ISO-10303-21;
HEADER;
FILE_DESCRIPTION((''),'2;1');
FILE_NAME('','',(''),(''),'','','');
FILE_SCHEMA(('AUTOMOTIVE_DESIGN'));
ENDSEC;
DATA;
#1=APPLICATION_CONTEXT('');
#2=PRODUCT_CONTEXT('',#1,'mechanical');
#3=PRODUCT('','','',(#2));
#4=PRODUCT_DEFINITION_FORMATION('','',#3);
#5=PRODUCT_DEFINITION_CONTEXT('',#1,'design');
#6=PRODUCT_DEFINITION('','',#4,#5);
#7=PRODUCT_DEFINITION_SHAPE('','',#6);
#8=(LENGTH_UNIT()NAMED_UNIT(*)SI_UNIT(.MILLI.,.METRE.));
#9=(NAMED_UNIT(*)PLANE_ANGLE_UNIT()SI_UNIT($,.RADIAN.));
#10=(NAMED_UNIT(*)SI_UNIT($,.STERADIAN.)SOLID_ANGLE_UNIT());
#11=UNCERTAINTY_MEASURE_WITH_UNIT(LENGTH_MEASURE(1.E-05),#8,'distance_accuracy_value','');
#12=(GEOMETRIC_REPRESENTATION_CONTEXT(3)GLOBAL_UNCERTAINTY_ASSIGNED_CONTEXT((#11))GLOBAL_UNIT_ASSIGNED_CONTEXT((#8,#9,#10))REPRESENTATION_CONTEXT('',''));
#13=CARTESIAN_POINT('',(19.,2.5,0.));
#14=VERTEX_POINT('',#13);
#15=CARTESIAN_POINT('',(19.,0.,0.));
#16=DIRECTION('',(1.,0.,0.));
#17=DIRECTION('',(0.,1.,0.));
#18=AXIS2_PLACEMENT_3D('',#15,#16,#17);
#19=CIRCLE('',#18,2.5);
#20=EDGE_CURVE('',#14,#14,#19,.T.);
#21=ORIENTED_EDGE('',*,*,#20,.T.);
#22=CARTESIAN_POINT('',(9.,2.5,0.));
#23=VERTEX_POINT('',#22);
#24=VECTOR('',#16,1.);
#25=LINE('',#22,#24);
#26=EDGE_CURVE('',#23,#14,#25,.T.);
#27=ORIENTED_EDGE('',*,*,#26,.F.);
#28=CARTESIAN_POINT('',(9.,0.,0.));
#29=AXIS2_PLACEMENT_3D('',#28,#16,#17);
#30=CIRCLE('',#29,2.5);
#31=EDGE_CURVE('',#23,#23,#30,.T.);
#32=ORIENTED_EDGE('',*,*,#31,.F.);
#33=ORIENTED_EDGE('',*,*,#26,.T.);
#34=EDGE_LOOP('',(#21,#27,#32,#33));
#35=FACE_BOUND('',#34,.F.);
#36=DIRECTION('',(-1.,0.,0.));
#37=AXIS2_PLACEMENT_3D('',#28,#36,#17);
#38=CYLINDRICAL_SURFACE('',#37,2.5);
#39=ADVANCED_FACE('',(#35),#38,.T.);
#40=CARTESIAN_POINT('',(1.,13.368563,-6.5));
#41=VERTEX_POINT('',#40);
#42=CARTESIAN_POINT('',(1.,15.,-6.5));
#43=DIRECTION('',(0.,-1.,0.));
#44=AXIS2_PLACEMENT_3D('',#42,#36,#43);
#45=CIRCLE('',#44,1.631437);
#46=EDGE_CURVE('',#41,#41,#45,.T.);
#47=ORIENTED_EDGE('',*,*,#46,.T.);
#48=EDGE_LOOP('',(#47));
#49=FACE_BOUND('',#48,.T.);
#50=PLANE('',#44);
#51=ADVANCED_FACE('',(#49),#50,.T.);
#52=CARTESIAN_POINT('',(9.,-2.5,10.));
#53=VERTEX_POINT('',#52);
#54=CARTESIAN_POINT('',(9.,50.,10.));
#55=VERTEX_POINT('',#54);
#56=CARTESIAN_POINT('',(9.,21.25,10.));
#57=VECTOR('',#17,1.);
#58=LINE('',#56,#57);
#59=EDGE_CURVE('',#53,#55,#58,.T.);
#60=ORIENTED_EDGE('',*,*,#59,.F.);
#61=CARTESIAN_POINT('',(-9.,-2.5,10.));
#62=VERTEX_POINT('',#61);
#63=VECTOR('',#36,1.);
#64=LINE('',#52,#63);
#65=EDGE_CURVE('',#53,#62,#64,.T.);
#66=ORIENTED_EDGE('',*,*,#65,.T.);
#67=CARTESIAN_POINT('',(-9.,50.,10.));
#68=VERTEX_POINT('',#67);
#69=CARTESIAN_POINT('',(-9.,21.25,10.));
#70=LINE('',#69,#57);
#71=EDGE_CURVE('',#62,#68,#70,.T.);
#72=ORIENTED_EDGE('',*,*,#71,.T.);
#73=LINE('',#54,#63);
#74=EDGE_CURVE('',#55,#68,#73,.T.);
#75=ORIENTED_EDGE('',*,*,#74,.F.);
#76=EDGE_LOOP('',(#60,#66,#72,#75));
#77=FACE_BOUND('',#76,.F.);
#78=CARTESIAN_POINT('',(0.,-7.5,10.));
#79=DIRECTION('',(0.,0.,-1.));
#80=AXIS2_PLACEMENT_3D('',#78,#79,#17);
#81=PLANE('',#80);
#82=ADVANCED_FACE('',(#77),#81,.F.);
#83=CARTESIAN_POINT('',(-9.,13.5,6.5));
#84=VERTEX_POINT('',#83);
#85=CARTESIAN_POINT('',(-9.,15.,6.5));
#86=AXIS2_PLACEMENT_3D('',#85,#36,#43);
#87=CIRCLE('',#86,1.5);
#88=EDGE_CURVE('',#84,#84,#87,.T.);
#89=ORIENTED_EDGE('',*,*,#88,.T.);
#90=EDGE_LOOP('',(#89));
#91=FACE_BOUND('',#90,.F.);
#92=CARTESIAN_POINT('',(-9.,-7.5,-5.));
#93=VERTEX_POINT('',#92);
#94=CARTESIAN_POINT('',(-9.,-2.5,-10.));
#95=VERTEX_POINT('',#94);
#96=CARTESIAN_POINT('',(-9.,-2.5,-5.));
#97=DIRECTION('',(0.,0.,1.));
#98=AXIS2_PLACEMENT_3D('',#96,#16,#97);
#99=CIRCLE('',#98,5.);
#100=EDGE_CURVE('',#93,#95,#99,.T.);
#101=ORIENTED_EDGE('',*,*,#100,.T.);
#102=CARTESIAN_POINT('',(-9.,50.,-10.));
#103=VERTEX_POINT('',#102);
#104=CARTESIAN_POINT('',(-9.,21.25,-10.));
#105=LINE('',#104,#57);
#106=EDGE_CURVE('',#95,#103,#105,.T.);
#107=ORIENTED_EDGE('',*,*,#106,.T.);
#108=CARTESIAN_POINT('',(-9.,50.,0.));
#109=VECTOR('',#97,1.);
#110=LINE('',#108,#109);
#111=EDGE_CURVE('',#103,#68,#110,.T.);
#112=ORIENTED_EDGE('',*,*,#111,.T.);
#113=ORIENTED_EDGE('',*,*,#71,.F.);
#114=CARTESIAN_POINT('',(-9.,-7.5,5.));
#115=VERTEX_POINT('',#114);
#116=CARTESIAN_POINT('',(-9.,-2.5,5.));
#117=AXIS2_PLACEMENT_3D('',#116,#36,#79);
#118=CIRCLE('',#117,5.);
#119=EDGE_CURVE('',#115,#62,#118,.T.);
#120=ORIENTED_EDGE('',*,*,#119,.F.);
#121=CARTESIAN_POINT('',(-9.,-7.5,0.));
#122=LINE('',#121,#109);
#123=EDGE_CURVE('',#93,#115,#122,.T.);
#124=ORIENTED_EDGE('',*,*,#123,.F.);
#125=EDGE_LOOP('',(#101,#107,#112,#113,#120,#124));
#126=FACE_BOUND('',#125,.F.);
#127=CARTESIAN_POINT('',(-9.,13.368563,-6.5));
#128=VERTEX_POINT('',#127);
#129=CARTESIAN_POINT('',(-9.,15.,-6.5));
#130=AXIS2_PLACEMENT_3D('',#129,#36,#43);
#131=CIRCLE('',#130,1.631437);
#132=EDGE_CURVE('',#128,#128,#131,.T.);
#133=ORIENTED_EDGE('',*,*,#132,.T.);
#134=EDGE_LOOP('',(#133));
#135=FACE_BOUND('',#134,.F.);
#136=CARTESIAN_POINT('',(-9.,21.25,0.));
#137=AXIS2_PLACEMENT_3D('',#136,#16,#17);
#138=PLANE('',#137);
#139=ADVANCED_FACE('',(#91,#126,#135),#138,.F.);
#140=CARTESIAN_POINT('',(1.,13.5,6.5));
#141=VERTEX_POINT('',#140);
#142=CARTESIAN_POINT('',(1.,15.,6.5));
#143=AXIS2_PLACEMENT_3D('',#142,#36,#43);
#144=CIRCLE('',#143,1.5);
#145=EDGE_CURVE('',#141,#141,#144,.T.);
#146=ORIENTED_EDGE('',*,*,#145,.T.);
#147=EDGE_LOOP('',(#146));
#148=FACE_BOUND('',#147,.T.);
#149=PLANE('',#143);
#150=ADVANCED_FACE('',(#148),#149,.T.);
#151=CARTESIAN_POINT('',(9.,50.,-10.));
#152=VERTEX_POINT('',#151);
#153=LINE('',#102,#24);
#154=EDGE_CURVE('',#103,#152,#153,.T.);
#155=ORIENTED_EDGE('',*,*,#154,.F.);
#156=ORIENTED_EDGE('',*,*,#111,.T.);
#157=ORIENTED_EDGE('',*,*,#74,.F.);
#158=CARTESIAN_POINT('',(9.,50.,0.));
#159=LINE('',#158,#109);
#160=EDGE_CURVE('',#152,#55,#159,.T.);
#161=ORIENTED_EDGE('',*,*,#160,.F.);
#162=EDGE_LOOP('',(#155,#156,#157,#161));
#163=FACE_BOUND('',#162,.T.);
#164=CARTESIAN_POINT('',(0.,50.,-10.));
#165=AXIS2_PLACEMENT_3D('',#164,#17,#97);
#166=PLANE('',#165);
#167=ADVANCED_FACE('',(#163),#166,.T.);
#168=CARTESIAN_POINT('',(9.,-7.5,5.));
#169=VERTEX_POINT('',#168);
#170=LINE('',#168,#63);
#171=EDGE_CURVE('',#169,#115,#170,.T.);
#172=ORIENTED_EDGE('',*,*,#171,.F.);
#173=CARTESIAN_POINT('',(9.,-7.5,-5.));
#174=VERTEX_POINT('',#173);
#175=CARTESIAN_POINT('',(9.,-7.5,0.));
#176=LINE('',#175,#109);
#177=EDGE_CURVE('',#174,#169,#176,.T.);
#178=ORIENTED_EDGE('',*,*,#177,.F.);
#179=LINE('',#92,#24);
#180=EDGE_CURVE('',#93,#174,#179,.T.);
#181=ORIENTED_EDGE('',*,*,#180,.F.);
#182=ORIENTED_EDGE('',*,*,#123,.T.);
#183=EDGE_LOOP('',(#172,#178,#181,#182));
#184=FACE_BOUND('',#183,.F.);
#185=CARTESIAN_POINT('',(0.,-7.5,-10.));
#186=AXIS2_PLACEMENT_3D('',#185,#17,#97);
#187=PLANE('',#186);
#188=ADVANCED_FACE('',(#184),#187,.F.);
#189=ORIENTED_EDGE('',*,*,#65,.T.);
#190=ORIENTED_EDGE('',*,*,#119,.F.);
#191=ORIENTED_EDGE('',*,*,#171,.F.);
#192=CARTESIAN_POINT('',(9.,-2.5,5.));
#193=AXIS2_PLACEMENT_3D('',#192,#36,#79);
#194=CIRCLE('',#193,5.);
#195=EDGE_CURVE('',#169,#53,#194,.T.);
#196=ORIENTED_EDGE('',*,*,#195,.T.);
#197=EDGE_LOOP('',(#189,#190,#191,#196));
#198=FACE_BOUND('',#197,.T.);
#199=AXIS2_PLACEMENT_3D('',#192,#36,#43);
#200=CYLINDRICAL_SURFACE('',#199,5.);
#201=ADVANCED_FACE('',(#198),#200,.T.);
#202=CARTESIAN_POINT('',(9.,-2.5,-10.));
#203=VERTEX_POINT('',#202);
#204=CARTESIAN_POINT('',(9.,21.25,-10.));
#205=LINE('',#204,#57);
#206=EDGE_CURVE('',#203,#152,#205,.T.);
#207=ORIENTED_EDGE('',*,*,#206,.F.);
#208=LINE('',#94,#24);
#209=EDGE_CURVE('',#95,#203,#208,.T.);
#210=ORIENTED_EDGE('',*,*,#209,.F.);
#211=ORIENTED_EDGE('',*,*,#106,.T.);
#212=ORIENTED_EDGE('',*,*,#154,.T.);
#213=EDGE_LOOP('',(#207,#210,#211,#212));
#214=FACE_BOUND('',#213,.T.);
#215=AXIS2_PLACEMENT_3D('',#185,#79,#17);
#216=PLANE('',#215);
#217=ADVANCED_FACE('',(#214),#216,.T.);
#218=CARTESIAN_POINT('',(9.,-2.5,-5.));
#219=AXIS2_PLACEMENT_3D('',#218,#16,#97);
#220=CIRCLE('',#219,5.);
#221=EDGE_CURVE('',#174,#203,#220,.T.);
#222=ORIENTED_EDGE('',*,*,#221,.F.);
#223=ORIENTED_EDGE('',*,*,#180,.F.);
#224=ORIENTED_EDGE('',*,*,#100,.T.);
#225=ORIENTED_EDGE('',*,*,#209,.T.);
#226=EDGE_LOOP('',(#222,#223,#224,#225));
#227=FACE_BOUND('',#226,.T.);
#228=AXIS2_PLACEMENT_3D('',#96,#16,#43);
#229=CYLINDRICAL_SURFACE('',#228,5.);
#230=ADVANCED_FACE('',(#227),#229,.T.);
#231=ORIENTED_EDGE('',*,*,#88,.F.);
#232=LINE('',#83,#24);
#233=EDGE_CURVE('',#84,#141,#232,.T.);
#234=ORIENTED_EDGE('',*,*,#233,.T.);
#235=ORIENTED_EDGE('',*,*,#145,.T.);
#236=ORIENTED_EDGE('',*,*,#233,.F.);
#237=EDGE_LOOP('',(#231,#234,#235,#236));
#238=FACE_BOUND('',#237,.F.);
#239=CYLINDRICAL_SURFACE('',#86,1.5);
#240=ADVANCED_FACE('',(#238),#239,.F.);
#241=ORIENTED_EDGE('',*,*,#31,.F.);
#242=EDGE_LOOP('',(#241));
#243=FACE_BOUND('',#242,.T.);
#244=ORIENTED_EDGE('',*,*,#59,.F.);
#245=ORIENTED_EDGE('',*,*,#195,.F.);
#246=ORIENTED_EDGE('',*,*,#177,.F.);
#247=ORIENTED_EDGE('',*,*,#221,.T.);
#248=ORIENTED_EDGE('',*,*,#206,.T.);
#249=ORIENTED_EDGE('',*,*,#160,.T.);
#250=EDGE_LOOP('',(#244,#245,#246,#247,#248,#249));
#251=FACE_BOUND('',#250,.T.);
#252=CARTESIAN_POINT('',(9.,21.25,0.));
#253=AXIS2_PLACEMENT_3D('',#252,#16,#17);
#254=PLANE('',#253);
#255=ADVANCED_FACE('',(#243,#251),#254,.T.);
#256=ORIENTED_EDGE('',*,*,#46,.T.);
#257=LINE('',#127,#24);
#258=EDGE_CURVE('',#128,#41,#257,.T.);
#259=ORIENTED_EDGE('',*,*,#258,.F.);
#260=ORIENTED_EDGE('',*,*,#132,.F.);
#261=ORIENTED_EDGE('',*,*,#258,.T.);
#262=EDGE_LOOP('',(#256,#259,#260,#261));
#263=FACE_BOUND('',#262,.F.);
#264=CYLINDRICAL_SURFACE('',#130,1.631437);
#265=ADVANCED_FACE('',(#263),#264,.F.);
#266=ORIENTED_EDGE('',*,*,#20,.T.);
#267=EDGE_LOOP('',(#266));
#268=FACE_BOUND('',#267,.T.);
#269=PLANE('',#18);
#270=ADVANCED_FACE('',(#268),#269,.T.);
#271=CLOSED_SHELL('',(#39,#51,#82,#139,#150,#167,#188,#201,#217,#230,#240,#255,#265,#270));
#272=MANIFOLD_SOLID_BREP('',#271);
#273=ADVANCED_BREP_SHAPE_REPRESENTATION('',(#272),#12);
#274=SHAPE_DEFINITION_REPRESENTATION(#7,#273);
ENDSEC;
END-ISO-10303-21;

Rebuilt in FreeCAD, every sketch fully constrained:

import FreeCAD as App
import Part
import Sketcher
from FreeCAD import Vector


def edges_at(feature, points):
    """Names of the edges that pass closest to the given points."""
    edges = feature.Shape.Edges
    near = lambda p: min(range(len(edges)), key=lambda i: edges[i].distToShape(Part.Vertex(*p))[0])
    return sorted({f"Edge{near(p) + 1}" for p in points})


def add_polygon(sketch, points):
    """Adds a closed chain of lines whose ends are joined by coincident constraints."""
    first, n = sketch.GeometryCount, len(points)
    for a, b in zip(points, points[1:] + points[:1]):
        sketch.addGeometry(Part.LineSegment(App.Vector(*a, 0), App.Vector(*b, 0)), False)
    for i in range(n):
        sketch.addConstraint(Sketcher.Constraint("Coincident", first + i, 2, first + (i + 1) % n, 1))

doc = App.newDocument("Part")
body = doc.addObject("PartDesign::Body", "Body")

# Sketch on YZ plane
sketch1 = doc.addObject("Sketcher::SketchObject", "Sketch")
body.addObject(sketch1)
sketch1.AttachmentSupport = (doc.YZ_Plane, [""])
sketch1.MapMode = "FlatFace"
add_polygon(sketch1, [(-8, 10), (-8, -10), (50, -10), (50, 10)])  # lines 0-3
sketch1.addConstraint([
    Sketcher.Constraint("Vertical", 0),
    Sketcher.Constraint("Horizontal", 1),
    Sketcher.Constraint("Vertical", 2),
    Sketcher.Constraint("Horizontal", 3),
    Sketcher.Constraint("DistanceY", 0, 2, 0, 1, 20.0),
    Sketcher.Constraint("DistanceX", 1, 1, 1, 2, 57.5),
    Sketcher.Constraint("DistanceY", 0, 2, -1, 1, 10.0),
    Sketcher.Constraint("DistanceX", -1, 1, 1, 2, 50.0),
])
pad1 = doc.addObject("PartDesign::Pad", "Pad")
body.addObject(pad1)
pad1.Profile = sketch1
pad1.Length = 18
pad1.Midplane = True
doc.recompute()

fillet = doc.addObject("PartDesign::Fillet", "Fillet")
body.addObject(fillet)
fillet.Base = (pad1, edges_at(pad1, [(0, -7.5, 10), (0, -7.5, -10)]))
fillet.Radius = 5

# Sketch on YZ plane
sketch2 = doc.addObject("Sketcher::SketchObject", "Sketch001")
body.addObject(sketch2)
sketch2.AttachmentSupport = (doc.YZ_Plane, [""])
sketch2.MapMode = "FlatFace"
sketch2.AttachmentOffset = App.Placement(Vector(0, 0, 9), App.Rotation())
sketch2.addGeometry(Part.Circle(Vector(0, 0, 0), Vector(0, 0, 1), 2.5), False)
sketch2.addConstraint([
    Sketcher.Constraint("Coincident", 0, 3, -1, 1),
    Sketcher.Constraint("Diameter", 0, 5.0),
])
pad2 = doc.addObject("PartDesign::Pad", "Pad001")
body.addObject(pad2)
pad2.Profile = sketch2
pad2.Length = 10

# Sketch on YZ plane
sketch3 = doc.addObject("Sketcher::SketchObject", "Sketch002")
body.addObject(sketch3)
sketch3.AttachmentSupport = (doc.YZ_Plane, [""])
sketch3.MapMode = "FlatFace"
sketch3.AttachmentOffset = App.Placement(Vector(0, 0, -9), App.Rotation())
sketch3.addGeometry([
    Part.Circle(Vector(15, 6.5, 0), Vector(0, 0, 1), 1.5),
    Part.Circle(Vector(15, -6.5, 0), Vector(0, 0, 1), 1.6),
], False)
sketch3.addConstraint([
    Sketcher.Constraint("Symmetric", 0, 3, 1, 3, -1),
    Sketcher.Constraint("Diameter", 0, 3.0),
    Sketcher.Constraint("DistanceX", -1, 1, 0, 3, 15.0),
    Sketcher.Constraint("DistanceY", 1, 3, 0, 3, 13.0),
    Sketcher.Constraint("Diameter", 1, 3.262874),
])
pocket1 = doc.addObject("PartDesign::Pocket", "Pocket")
body.addObject(pocket1)
pocket1.Profile = sketch3
pocket1.Length = 10
pocket1.Reversed = True

doc.recompute()
